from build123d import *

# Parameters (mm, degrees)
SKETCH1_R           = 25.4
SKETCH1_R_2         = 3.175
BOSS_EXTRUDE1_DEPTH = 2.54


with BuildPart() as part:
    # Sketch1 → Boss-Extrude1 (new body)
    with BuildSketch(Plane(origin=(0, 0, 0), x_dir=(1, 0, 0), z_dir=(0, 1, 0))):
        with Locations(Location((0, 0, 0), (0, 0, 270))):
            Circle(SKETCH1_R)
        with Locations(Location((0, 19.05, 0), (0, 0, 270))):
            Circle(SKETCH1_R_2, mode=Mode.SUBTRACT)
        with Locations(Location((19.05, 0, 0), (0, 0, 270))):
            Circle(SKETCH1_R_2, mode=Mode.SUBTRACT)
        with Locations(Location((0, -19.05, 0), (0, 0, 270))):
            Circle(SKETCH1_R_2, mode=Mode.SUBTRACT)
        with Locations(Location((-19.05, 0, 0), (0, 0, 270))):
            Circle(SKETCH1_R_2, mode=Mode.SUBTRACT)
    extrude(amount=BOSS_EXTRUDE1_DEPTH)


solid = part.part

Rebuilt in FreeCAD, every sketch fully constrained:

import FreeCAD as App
import Part
import Sketcher

V = App.Vector
Q = App.Units.Quantity

doc = App.newDocument("Part")
body = doc.addObject("PartDesign::Body", "Body")

sketch1 = doc.addObject("Sketcher::SketchObject", "Sketch")
body.addObject(sketch1)
sketch1.AttachmentSupport = (doc.XZ_Plane, [""])
sketch1.MapMode = "FlatFace"
sketch1.addGeometry([
    Part.Circle(V(0, 0, 0), V(0, 0, 1), 25.4),
    Part.Circle(V(0, -19.05, 0), V(0, 0, 1), 3.175),
    Part.Circle(V(-19.05, 0, 0), V(0, 0, 1), 3.175),
    Part.Circle(V(19.05, 0, 0), V(0, 0, 1), 3.175),
    Part.Circle(V(0, 19.05, 0), V(0, 0, 1), 3.175),
], False)
sketch1.addConstraint([
    Sketcher.Constraint("Coincident", 0, 3, -1, 1),
    Sketcher.Constraint("Equal", 1, 2),
    Sketcher.Constraint("Equal", 2, 3),
    Sketcher.Constraint("Equal", 3, 4),
    Sketcher.Constraint("Symmetric", 2, 3, 3, 3, -1, 1),
    Sketcher.Constraint("Symmetric", 1, 3, 4, 3, -1, 1),
    Sketcher.Constraint("PointOnObject", 1, 3, -2),
    Sketcher.Constraint("PointOnObject", 2, 3, -1),
    Sketcher.Constraint("Diameter", 0, Q("2 in")),
    Sketcher.Constraint("Diameter", 1, Q("0.25 in")),
    Sketcher.Constraint("DistanceX", 2, 3, 3, 3, Q("1.5 in")),
    Sketcher.Constraint("DistanceY", 1, 3, 4, 3, Q("1.5 in")),
])
pad1 = doc.addObject("PartDesign::Pad", "Pad")
body.addObject(pad1)
pad1.Profile = sketch1
pad1.Length = Q("0.1 in")
pad1.Reversed = True

doc.recompute()
